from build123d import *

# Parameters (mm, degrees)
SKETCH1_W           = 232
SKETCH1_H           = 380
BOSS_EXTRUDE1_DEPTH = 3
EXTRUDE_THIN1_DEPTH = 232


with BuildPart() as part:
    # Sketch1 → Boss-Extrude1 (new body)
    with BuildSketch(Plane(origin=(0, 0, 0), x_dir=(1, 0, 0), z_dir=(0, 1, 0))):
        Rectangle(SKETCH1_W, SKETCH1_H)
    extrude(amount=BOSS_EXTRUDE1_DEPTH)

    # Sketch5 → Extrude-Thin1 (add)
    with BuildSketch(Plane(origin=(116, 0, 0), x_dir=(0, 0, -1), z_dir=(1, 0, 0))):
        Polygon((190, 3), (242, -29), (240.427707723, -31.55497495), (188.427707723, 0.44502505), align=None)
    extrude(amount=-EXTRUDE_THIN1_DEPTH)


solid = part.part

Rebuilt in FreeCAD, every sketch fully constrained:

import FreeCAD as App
import Part
import Sketcher

V = App.Vector
Q = App.Units.Quantity


def add_polygon(sketch, points):
    """Adds a closed chain of lines whose ends are joined by coincident constraints."""
    first, n = sketch.GeometryCount, len(points)
    for a, b in zip(points, points[1:] + points[:1]):
        sketch.addGeometry(Part.LineSegment(App.Vector(*a, 0), App.Vector(*b, 0)), False)
    for i in range(n):
        sketch.addConstraint(Sketcher.Constraint("Coincident", first + i, 2, first + (i + 1) % n, 1))

doc = App.newDocument("Part")
body = doc.addObject("PartDesign::Body", "Body")

# Sketch on XZ plane
sketch1 = body.newObject("Sketcher::SketchObject", "Sketch")
sketch1.AttachmentSupport = (doc.getObject("XZ_Plane"), [""])
sketch1.MapMode = "FlatFace"
add_polygon(sketch1, [(-116, -190), (-116, 190), (116, 190), (116, -190)])  # lines 0-3
sketch1.addConstraint(Sketcher.Constraint("Vertical", 0))
sketch1.addConstraint(Sketcher.Constraint("Horizontal", 1))
sketch1.addConstraint(Sketcher.Constraint("Vertical", 2))
sketch1.addConstraint(Sketcher.Constraint("Horizontal", 3))
sketch1.addConstraint(Sketcher.Constraint("Symmetric", 0, 2, 2, 2, -1, 1))
sketch1.addConstraint(Sketcher.Constraint("DistanceX", 1, 1, 1, 2, Q("232 mm")))
sketch1.addConstraint(Sketcher.Constraint("DistanceY", 0, 1, 0, 2, Q("380 mm")))
pad1 = body.newObject("PartDesign::Pad", "Pad")
pad1.Profile = sketch1
pad1.Length = 3
pad1.Reversed = True

# Sketch on YZ plane
sketch2 = body.newObject("Sketcher::SketchObject", "Sketch001")
sketch2.AttachmentSupport = (doc.getObject("YZ_Plane"), [""])
sketch2.MapMode = "FlatFace"
sketch2.AttachmentOffset = App.Placement(V(0, 0, 116), App.Rotation())
add_polygon(sketch2, [(-29, -242), (3, -190), (0.4, -188.4), (-31.6, -240.4)])  # lines 0-3
sketch2.addConstraint(Sketcher.Constraint("Perpendicular", 0, 1))
sketch2.addConstraint(Sketcher.Constraint("Perpendicular", 1, 2))
sketch2.addConstraint(Sketcher.Constraint("Perpendicular", 2, 3))
sketch2.addConstraint(Sketcher.Constraint("Distance", 1, Q("3 mm")))
sketch2.addConstraint(Sketcher.Constraint("DistanceX", -1, 1, 0, 2, Q("3 mm")))
sketch2.addConstraint(Sketcher.Constraint("DistanceY", 0, 2, -1, 1, Q("190 mm")))
sketch2.addConstraint(Sketcher.Constraint("DistanceX", 3, 2, -1, 1, Q("29 mm")))
sketch2.addConstraint(Sketcher.Constraint("DistanceY", 3, 2, -1, 1, Q("242 mm")))
pad2 = body.newObject("PartDesign::Pad", "Pad001")
pad2.Profile = sketch2
pad2.Length = 232
pad2.Reversed = True

doc.recompute()
